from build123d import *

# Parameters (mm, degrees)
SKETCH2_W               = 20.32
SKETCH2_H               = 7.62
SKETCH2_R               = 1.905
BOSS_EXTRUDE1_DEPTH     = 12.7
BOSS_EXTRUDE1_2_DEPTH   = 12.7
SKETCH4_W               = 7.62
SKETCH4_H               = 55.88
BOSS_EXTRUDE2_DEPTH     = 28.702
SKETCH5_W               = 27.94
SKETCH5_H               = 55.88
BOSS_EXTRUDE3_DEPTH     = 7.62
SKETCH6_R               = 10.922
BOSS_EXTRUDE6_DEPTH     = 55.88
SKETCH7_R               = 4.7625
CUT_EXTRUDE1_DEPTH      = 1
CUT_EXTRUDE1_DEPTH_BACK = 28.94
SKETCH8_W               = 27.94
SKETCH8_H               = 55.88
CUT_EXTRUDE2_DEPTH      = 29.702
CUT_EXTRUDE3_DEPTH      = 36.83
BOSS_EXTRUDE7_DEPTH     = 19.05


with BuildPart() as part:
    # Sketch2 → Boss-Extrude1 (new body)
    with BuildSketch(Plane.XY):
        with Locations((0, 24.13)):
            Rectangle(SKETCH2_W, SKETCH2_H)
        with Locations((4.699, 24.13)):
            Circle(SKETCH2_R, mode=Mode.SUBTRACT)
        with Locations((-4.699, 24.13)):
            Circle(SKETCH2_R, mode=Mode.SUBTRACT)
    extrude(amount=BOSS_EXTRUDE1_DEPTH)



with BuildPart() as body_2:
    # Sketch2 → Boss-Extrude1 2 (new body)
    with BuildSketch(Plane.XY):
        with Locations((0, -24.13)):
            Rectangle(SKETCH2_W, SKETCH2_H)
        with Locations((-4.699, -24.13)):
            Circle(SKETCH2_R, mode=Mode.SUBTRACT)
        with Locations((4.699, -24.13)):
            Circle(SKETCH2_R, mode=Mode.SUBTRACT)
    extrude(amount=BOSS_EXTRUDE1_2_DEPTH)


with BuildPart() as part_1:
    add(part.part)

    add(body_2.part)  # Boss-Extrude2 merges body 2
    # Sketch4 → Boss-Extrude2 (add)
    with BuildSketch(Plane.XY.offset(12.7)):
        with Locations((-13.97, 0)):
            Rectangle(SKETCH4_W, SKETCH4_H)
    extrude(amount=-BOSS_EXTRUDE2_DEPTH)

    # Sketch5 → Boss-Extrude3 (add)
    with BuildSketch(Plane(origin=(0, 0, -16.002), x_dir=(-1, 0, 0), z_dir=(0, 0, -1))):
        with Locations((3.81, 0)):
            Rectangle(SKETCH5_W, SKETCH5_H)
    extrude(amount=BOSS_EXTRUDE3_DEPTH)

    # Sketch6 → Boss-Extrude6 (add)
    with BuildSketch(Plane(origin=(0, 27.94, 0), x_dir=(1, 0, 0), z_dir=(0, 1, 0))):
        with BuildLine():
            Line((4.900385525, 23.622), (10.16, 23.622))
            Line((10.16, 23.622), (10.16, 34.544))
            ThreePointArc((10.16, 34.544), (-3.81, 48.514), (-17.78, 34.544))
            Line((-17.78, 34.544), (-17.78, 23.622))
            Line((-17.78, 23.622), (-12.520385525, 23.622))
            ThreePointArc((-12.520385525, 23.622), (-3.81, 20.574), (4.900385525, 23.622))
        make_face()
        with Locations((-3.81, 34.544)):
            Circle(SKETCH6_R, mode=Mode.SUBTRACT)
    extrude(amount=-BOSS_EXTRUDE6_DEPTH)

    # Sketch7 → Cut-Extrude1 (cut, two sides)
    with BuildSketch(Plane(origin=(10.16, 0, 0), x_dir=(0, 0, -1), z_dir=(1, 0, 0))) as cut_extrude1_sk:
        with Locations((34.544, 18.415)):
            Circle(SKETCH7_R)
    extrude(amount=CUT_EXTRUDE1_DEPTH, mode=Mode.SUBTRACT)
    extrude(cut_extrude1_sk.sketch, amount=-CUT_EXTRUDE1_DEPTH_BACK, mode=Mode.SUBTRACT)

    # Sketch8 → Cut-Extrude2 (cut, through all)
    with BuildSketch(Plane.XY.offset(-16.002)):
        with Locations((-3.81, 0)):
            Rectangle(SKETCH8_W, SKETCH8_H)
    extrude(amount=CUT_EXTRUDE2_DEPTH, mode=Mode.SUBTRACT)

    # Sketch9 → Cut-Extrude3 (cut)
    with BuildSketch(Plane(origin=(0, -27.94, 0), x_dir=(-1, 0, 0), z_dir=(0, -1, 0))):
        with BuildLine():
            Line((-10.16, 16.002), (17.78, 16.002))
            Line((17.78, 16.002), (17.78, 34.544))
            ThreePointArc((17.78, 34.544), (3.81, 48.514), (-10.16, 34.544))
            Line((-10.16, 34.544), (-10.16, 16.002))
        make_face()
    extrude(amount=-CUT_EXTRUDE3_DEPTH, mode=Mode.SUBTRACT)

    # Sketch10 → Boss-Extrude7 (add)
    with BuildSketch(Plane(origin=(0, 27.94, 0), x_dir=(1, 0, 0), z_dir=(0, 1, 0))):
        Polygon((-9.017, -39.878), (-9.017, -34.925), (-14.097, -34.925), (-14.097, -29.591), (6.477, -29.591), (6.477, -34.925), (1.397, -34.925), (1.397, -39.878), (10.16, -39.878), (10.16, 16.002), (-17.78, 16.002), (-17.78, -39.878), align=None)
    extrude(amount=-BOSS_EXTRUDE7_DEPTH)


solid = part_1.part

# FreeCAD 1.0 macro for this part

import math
import FreeCAD as App
import Part
import Sketcher
Q = App.Units.Quantity

doc = App.newDocument("Part")
params = doc.addObject("Spreadsheet::Sheet", "Params")
for row, (alias, value) in enumerate([
    ("sketch1_diameter", "0.15 in"),
    ("sketch1_width", "0.8 in"),
    ("sketch1_height", "0.3 in"),
    ("pad1_length", "0.5 in"),
    ("sketch2_diameter", "0.15 in"),
    ("sketch2_width", "0.8 in"),
    ("sketch2_height", "0.3 in"),
    ("pad2_length", "0.5 in"),
    ("sketch3_width", "0.3 in"),
    ("sketch3_height", "2.2 in"),
    ("pad3_length", "1.13 in"),
    ("sketch4_width", "1.1 in"),
    ("sketch4_height", "2.2 in"),
    ("pad4_length", "0.3 in"),
    ("sketch5_diameter", "0.86 in"),
    ("sketch5_radius", "0.55 in"),
    ("sketch5_height", "0.43 in"),
    ("pad5_length", "2.2 in"),
    ("sketch6_diameter", "0.375 in"),
    ("sketch7_width", "1.1 in"),
    ("sketch7_height", "2.2 in"),
    ("sketch8_radius", "0.55 in"),
    ("sketch8_height", "0.73 in"),
    ("pocket3_length", "1.45 in"),
    ("sketch9_width", "0.2 in"),
    ("sketch9_width2", "1.1 in"),
    ("sketch9_height", "2.2 in"),
    ("sketch9_width3", "0.81 in"),
    ("sketch9_height2", "0.21 in"),
    ("pad6_length", "0.75 in"),
], start=1):
    params.set(f"A{row}", alias)
    params.set(f"B{row}", "=" + value)
    params.setAlias(f"B{row}", alias)

body = doc.addObject("PartDesign::Body", "Body")

sketch1 = body.newObject("Sketcher::SketchObject", "Sketch")
sketch1.AttachmentSupport = (doc.getObject("XY_Plane"), [""])
sketch1.MapMode = "FlatFace"
sketch1.addGeometry(Part.LineSegment(App.Vector(-10.2, 27.9, 0), App.Vector(-10.2, 20.3, 0)), False)
sketch1.addGeometry(Part.LineSegment(App.Vector(-10.2, 20.3, 0), App.Vector(10.2, 20.3, 0)), False)
sketch1.addGeometry(Part.LineSegment(App.Vector(10.2, 20.3, 0), App.Vector(10.2, 27.9, 0)), False)
sketch1.addGeometry(Part.LineSegment(App.Vector(10.2, 27.9, 0), App.Vector(-10.2, 27.9, 0)), False)
sketch1.addGeometry(Part.Circle(App.Vector(-4.7, 24.1, 0), App.Vector(0, 0, 1), 1.9), False)
sketch1.addGeometry(Part.Circle(App.Vector(4.7, 24.1, 0), App.Vector(0, 0, 1), 1.9), False)
sketch1.addConstraint(Sketcher.Constraint("Coincident", 0, 2, 1, 1))
sketch1.addConstraint(Sketcher.Constraint("Coincident", 1, 2, 2, 1))
sketch1.addConstraint(Sketcher.Constraint("Coincident", 2, 2, 3, 1))
sketch1.addConstraint(Sketcher.Constraint("Coincident", 3, 2, 0, 1))
sketch1.addConstraint(Sketcher.Constraint("Vertical", 0))
sketch1.addConstraint(Sketcher.Constraint("Horizontal", 1))
sketch1.addConstraint(Sketcher.Constraint("Vertical", 2))
sketch1.addConstraint(Sketcher.Constraint("Horizontal", 3))
sketch1.addConstraint(Sketcher.Constraint("Equal", 4, 5))
sketch1.addConstraint(Sketcher.Constraint("Symmetric", 4, 3, 5, 3, -2))
sketch1.addConstraint(Sketcher.Constraint("Diameter", 4, Q("0.15 in")))
sketch1.addConstraint(Sketcher.Constraint("DistanceX", 1, 1, 1, 2, Q("0.8 in")))
sketch1.addConstraint(Sketcher.Constraint("DistanceY", 0, 2, 0, 1, Q("0.3 in")))
sketch1.addConstraint(Sketcher.Constraint("DistanceX", 0, 2, -1, 1, Q("0.4 in")))
sketch1.addConstraint(Sketcher.Constraint("DistanceY", -1, 1, 0, 2, Q("0.8 in")))
sketch1.addConstraint(Sketcher.Constraint("DistanceY", -1, 1, 4, 3, Q("0.95 in")))
sketch1.addConstraint(Sketcher.Constraint("DistanceX", 4, 3, 5, 3, Q("0.37 in")))
sketch1.setExpression("Constraints[10]", "Params.sketch1_diameter")
sketch1.setExpression("Constraints[11]", "Params.sketch1_width")
sketch1.setExpression("Constraints[12]", "Params.sketch1_height")
pad1 = body.newObject("PartDesign::Pad", "Pad")
pad1.Profile = sketch1
pad1.setExpression("Length", "Params.pad1_length")
body2 = doc.addObject("PartDesign::Body", "Body001")

sketch2 = body2.newObject("Sketcher::SketchObject", "Sketch001")
sketch2.AttachmentSupport = (doc.getObject("XY_Plane001"), [""])
sketch2.MapMode = "FlatFace"
sketch2.addGeometry(Part.LineSegment(App.Vector(-10.2, -20.3, 0), App.Vector(-10.2, -27.9, 0)), False)
sketch2.addGeometry(Part.LineSegment(App.Vector(-10.2, -27.9, 0), App.Vector(10.2, -27.9, 0)), False)
sketch2.addGeometry(Part.LineSegment(App.Vector(10.2, -27.9, 0), App.Vector(10.2, -20.3, 0)), False)
sketch2.addGeometry(Part.LineSegment(App.Vector(10.2, -20.3, 0), App.Vector(-10.2, -20.3, 0)), False)
sketch2.addGeometry(Part.Circle(App.Vector(-4.7, -24.1, 0), App.Vector(0, 0, 1), 1.9), False)
sketch2.addGeometry(Part.Circle(App.Vector(4.7, -24.1, 0), App.Vector(0, 0, 1), 1.9), False)
sketch2.addConstraint(Sketcher.Constraint("Coincident", 0, 2, 1, 1))
sketch2.addConstraint(Sketcher.Constraint("Coincident", 1, 2, 2, 1))
sketch2.addConstraint(Sketcher.Constraint("Coincident", 2, 2, 3, 1))
sketch2.addConstraint(Sketcher.Constraint("Coincident", 3, 2, 0, 1))
sketch2.addConstraint(Sketcher.Constraint("Vertical", 0))
sketch2.addConstraint(Sketcher.Constraint("Horizontal", 1))
sketch2.addConstraint(Sketcher.Constraint("Vertical", 2))
sketch2.addConstraint(Sketcher.Constraint("Horizontal", 3))
sketch2.addConstraint(Sketcher.Constraint("Equal", 4, 5))
sketch2.addConstraint(Sketcher.Constraint("Symmetric", 4, 3, 5, 3, -2))
sketch2.addConstraint(Sketcher.Constraint("Diameter", 4, Q("0.15 in")))
sketch2.addConstraint(Sketcher.Constraint("DistanceX", 1, 1, 1, 2, Q("0.8 in")))
sketch2.addConstraint(Sketcher.Constraint("DistanceY", 0, 2, 0, 1, Q("0.3 in")))
sketch2.addConstraint(Sketcher.Constraint("DistanceX", 0, 2, -1, 1, Q("0.4 in")))
sketch2.addConstraint(Sketcher.Constraint("DistanceY", 0, 2, -1, 1, Q("1.1 in")))
sketch2.addConstraint(Sketcher.Constraint("DistanceY", 4, 3, -1, 1, Q("0.95 in")))
sketch2.addConstraint(Sketcher.Constraint("DistanceX", 4, 3, 5, 3, Q("0.37 in")))
sketch2.setExpression("Constraints[10]", "Params.sketch2_diameter")
sketch2.setExpression("Constraints[11]", "Params.sketch2_width")
sketch2.setExpression("Constraints[12]", "Params.sketch2_height")
pad2 = body2.newObject("PartDesign::Pad", "Pad001")
pad2.Profile = sketch2
pad2.setExpression("Length", "Params.pad2_length")
body.AllowCompound = True
doc.recompute()

boolean = body.newObject("PartDesign::Boolean", "Boolean")
boolean.Type = "Fuse"
boolean.addObjects([body2])

sketch3 = body.newObject("Sketcher::SketchObject", "Sketch002")
sketch3.AttachmentSupport = (doc.getObject("XY_Plane"), [""])
sketch3.MapMode = "FlatFace"
sketch3.AttachmentOffset = App.Placement(App.Vector(0, 0, 0.5 * 25.4), App.Rotation())
sketch3.addGeometry(Part.LineSegment(App.Vector(-18, 28, 0), App.Vector(-18, -28, 0)), False)
sketch3.addGeometry(Part.LineSegment(App.Vector(-18, -28, 0), App.Vector(-10, -28, 0)), False)
sketch3.addGeometry(Part.LineSegment(App.Vector(-10, -28, 0), App.Vector(-10, 28, 0)), False)
sketch3.addGeometry(Part.LineSegment(App.Vector(-10, 28, 0), App.Vector(-18, 28, 0)), False)
sketch3.addConstraint(Sketcher.Constraint("Coincident", 0, 2, 1, 1))
sketch3.addConstraint(Sketcher.Constraint("Coincident", 1, 2, 2, 1))
sketch3.addConstraint(Sketcher.Constraint("Coincident", 2, 2, 3, 1))
sketch3.addConstraint(Sketcher.Constraint("Coincident", 3, 2, 0, 1))
sketch3.addConstraint(Sketcher.Constraint("Vertical", 0))
sketch3.addConstraint(Sketcher.Constraint("Horizontal", 1))
sketch3.addConstraint(Sketcher.Constraint("Vertical", 2))
sketch3.addConstraint(Sketcher.Constraint("Horizontal", 3))
sketch3.addConstraint(Sketcher.Constraint("DistanceX", 1, 1, 1, 2, Q("0.3 in")))
sketch3.addConstraint(Sketcher.Constraint("DistanceY", 0, 2, 0, 1, Q("2.2 in")))
sketch3.addConstraint(Sketcher.Constraint("DistanceX", 0, 2, -1, 1, Q("0.7 in")))
sketch3.addConstraint(Sketcher.Constraint("DistanceY", 0, 2, -1, 1, Q("1.1 in")))
sketch3.setExpression("Constraints[8]", "Params.sketch3_width")
sketch3.setExpression("Constraints[9]", "Params.sketch3_height")
pad3 = body.newObject("PartDesign::Pad", "Pad002")
pad3.Profile = sketch3
pad3.setExpression("Length", "Params.pad3_length")
pad3.Reversed = True

sketch4 = body.newObject("Sketcher::SketchObject", "Sketch003")
sketch4.AttachmentSupport = (doc.getObject("XY_Plane"), [""])
sketch4.MapMode = "FlatFace"
sketch4.AttachmentOffset = App.Placement(App.Vector(0, 0, -0.63 * 25.4), App.Rotation())
sketch4.addGeometry(Part.LineSegment(App.Vector(10, 28, 0), App.Vector(10, -28, 0)), False)
sketch4.addGeometry(Part.LineSegment(App.Vector(10, -28, 0), App.Vector(-18, -28, 0)), False)
sketch4.addGeometry(Part.LineSegment(App.Vector(-18, -28, 0), App.Vector(-18, 28, 0)), False)
sketch4.addGeometry(Part.LineSegment(App.Vector(-18, 28, 0), App.Vector(10, 28, 0)), False)
sketch4.addConstraint(Sketcher.Constraint("Coincident", 0, 2, 1, 1))
sketch4.addConstraint(Sketcher.Constraint("Coincident", 1, 2, 2, 1))
sketch4.addConstraint(Sketcher.Constraint("Coincident", 2, 2, 3, 1))
sketch4.addConstraint(Sketcher.Constraint("Coincident", 3, 2, 0, 1))
sketch4.addConstraint(Sketcher.Constraint("Vertical", 0))
sketch4.addConstraint(Sketcher.Constraint("Horizontal", 1))
sketch4.addConstraint(Sketcher.Constraint("Vertical", 2))
sketch4.addConstraint(Sketcher.Constraint("Horizontal", 3))
sketch4.addConstraint(Sketcher.Constraint("DistanceX", 1, 2, 1, 1, Q("1.1 in")))
sketch4.addConstraint(Sketcher.Constraint("DistanceY", 0, 2, 0, 1, Q("2.2 in")))
sketch4.addConstraint(Sketcher.Constraint("DistanceX", -1, 1, 0, 2, Q("0.4 in")))
sketch4.addConstraint(Sketcher.Constraint("DistanceY", 0, 2, -1, 1, Q("1.1 in")))
sketch4.setExpression("Constraints[8]", "Params.sketch4_width")
sketch4.setExpression("Constraints[9]", "Params.sketch4_height")
pad4 = body.newObject("PartDesign::Pad", "Pad003")
pad4.Profile = sketch4
pad4.setExpression("Length", "Params.pad4_length")
pad4.Reversed = True

sketch5 = body.newObject("Sketcher::SketchObject", "Sketch004")
sketch5.AttachmentSupport = (doc.getObject("XZ_Plane"), [""])
sketch5.MapMode = "FlatFace"
sketch5.AttachmentOffset = App.Placement(App.Vector(0, 0, -1.1 * 25.4), App.Rotation())
sketch5.addGeometry(Part.LineSegment(App.Vector(5, -24, 0), App.Vector(10, -24, 0)), False)
sketch5.addGeometry(Part.LineSegment(App.Vector(10, -24, 0), App.Vector(10, -35, 0)), False)
sketch5.addGeometry(Part.ArcOfCircle(Part.Circle(App.Vector(-4, -35, 0), App.Vector(0, 0, 1), 14), math.radians(180), math.radians(360)), False)
sketch5.addGeometry(Part.LineSegment(App.Vector(-18, -35, 0), App.Vector(-18, -24, 0)), False)
sketch5.addGeometry(Part.LineSegment(App.Vector(-18, -24, 0), App.Vector(-13, -24, 0)), False)
sketch5.addGeometry(Part.ArcOfCircle(Part.Circle(App.Vector(-4, -35, 0), App.Vector(0, 0, 1), 14), math.radians(51), math.radians(129)), False)
sketch5.addGeometry(Part.Circle(App.Vector(-4, -35, 0), App.Vector(0, 0, 1), 11), False)
sketch5.addConstraint(Sketcher.Constraint("Coincident", 0, 2, 1, 1))
sketch5.addConstraint(Sketcher.Constraint("Tangent", 1, 2, 2, 2))
sketch5.addConstraint(Sketcher.Constraint("Tangent", 2, 1, 3, 1))
sketch5.addConstraint(Sketcher.Constraint("Coincident", 3, 2, 4, 1))
sketch5.addConstraint(Sketcher.Constraint("Coincident", 4, 2, 5, 2))
sketch5.addConstraint(Sketcher.Constraint("Coincident", 5, 1, 0, 1))
sketch5.addConstraint(Sketcher.Constraint("Horizontal", 0))
sketch5.addConstraint(Sketcher.Constraint("Vertical", 1))
sketch5.addConstraint(Sketcher.Constraint("Vertical", 3))
sketch5.addConstraint(Sketcher.Constraint("Horizontal", 4))
sketch5.addConstraint(Sketcher.Constraint("Coincident", 5, 3, 2, 3))
sketch5.addConstraint(Sketcher.Constraint("Coincident", 6, 3, 2, 3))
sketch5.addConstraint(Sketcher.Constraint("Equal", 2, 5))
sketch5.addConstraint(Sketcher.Constraint("Horizontal", 0, 2, 3, 2))
sketch5.addConstraint(Sketcher.Constraint("Diameter", 6, Q("0.86 in")))
sketch5.addConstraint(Sketcher.Constraint("Radius", 2, Q("0.55 in")))
sketch5.addConstraint(Sketcher.Constraint("DistanceY", 1, 2, 1, 1, Q("0.43 in")))
sketch5.addConstraint(Sketcher.Constraint("DistanceX", -1, 1, 0, 2, Q("0.4 in")))
sketch5.addConstraint(Sketcher.Constraint("DistanceY", 2, 3, -1, 1, Q("1.36 in")))
sketch5.setExpression("Constraints[14]", "Params.sketch5_diameter")
sketch5.setExpression("Constraints[15]", "Params.sketch5_radius")
sketch5.setExpression("Constraints[16]", "Params.sketch5_height")
pad5 = body.newObject("PartDesign::Pad", "Pad004")
pad5.Profile = sketch5
pad5.setExpression("Length", "Params.pad5_length")

sketch6 = body.newObject("Sketcher::SketchObject", "Sketch005")
sketch6.AttachmentSupport = (doc.getObject("YZ_Plane"), [""])
sketch6.MapMode = "FlatFace"
sketch6.AttachmentOffset = App.Placement(App.Vector(0, 0, 0.4 * 25.4), App.Rotation())
sketch6.addGeometry(Part.Circle(App.Vector(18.4, -34.5, 0), App.Vector(0, 0, 1), 4.8), False)
sketch6.addConstraint(Sketcher.Constraint("Diameter", 0, Q("0.375 in")))
sketch6.addConstraint(Sketcher.Constraint("DistanceY", 0, 3, -1, 1, Q("1.36 in")))
sketch6.addConstraint(Sketcher.Constraint("DistanceX", -1, 1, 0, 3, Q("0.725 in")))
sketch6.setExpression("Constraints[0]", "Params.sketch6_diameter")
pocket1 = body.newObject("PartDesign::Pocket", "Pocket")
pocket1.Profile = sketch6
pocket1.Type = "ThroughAll"
pocket1.Midplane = True

sketch7 = body.newObject("Sketcher::SketchObject", "Sketch006")
sketch7.AttachmentSupport = (doc.getObject("XY_Plane"), [""])
sketch7.MapMode = "FlatFace"
sketch7.AttachmentOffset = App.Placement(App.Vector(0, 0, -0.63 * 25.4), App.Rotation())
sketch7.addGeometry(Part.LineSegment(App.Vector(-18, 28, 0), App.Vector(-18, -28, 0)), False)
sketch7.addGeometry(Part.LineSegment(App.Vector(-18, -28, 0), App.Vector(10, -28, 0)), False)
sketch7.addGeometry(Part.LineSegment(App.Vector(10, -28, 0), App.Vector(10, 28, 0)), False)
sketch7.addGeometry(Part.LineSegment(App.Vector(10, 28, 0), App.Vector(-18, 28, 0)), False)
sketch7.addConstraint(Sketcher.Constraint("Coincident", 0, 2, 1, 1))
sketch7.addConstraint(Sketcher.Constraint("Coincident", 1, 2, 2, 1))
sketch7.addConstraint(Sketcher.Constraint("Coincident", 2, 2, 3, 1))
sketch7.addConstraint(Sketcher.Constraint("Coincident", 3, 2, 0, 1))
sketch7.addConstraint(Sketcher.Constraint("Vertical", 0))
sketch7.addConstraint(Sketcher.Constraint("Horizontal", 1))
sketch7.addConstraint(Sketcher.Constraint("Vertical", 2))
sketch7.addConstraint(Sketcher.Constraint("Horizontal", 3))
sketch7.addConstraint(Sketcher.Constraint("DistanceX", 1, 1, 1, 2, Q("1.1 in")))
sketch7.addConstraint(Sketcher.Constraint("DistanceY", 0, 2, 0, 1, Q("2.2 in")))
sketch7.addConstraint(Sketcher.Constraint("DistanceX", 0, 2, -1, 1, Q("0.7 in")))
sketch7.addConstraint(Sketcher.Constraint("DistanceY", 0, 2, -1, 1, Q("1.1 in")))
sketch7.setExpression("Constraints[8]", "Params.sketch7_width")
sketch7.setExpression("Constraints[9]", "Params.sketch7_height")
pocket2 = body.newObject("PartDesign::Pocket", "Pocket001")
pocket2.Profile = sketch7
pocket2.Type = "ThroughAll"
pocket2.Reversed = True

sketch8 = body.newObject("Sketcher::SketchObject", "Sketch007")
sketch8.AttachmentSupport = (doc.getObject("XZ_Plane"), [""])
sketch8.MapMode = "FlatFace"
sketch8.AttachmentOffset = App.Placement(App.Vector(0, 0, 1.1 * 25.4), App.Rotation())
sketch8.addGeometry(Part.LineSegment(App.Vector(10, -16, 0), App.Vector(-18, -16, 0)), False)
sketch8.addGeometry(Part.LineSegment(App.Vector(-18, -16, 0), App.Vector(-18, -35, 0)), False)
sketch8.addGeometry(Part.ArcOfCircle(Part.Circle(App.Vector(-4, -35, 0), App.Vector(0, 0, 1), 14), math.radians(180), math.radians(360)), False)
sketch8.addGeometry(Part.LineSegment(App.Vector(10, -35, 0), App.Vector(10, -16, 0)), False)
sketch8.addConstraint(Sketcher.Constraint("Coincident", 0, 2, 1, 1))
sketch8.addConstraint(Sketcher.Constraint("Tangent", 1, 2, 2, 1))
sketch8.addConstraint(Sketcher.Constraint("Tangent", 2, 2, 3, 1))
sketch8.addConstraint(Sketcher.Constraint("Coincident", 3, 2, 0, 1))
sketch8.addConstraint(Sketcher.Constraint("Horizontal", 0))
sketch8.addConstraint(Sketcher.Constraint("Vertical", 1))
sketch8.addConstraint(Sketcher.Constraint("Vertical", 3))
sketch8.addConstraint(Sketcher.Constraint("Radius", 2, Q("0.55 in")))
sketch8.addConstraint(Sketcher.Constraint("DistanceY", 1, 2, 1, 1, Q("0.73 in")))
sketch8.addConstraint(Sketcher.Constraint("DistanceX", 0, 2, -1, 1, Q("0.7 in")))
sketch8.addConstraint(Sketcher.Constraint("DistanceY", 2, 3, -1, 1, Q("1.36 in")))
sketch8.setExpression("Constraints[7]", "Params.sketch8_radius")
sketch8.setExpression("Constraints[8]", "Params.sketch8_height")
pocket3 = body.newObject("PartDesign::Pocket", "Pocket002")
pocket3.Profile = sketch8
pocket3.setExpression("Length", "Params.pocket3_length")

sketch9 = body.newObject("Sketcher::SketchObject", "Sketch008")
sketch9.AttachmentSupport = (doc.getObject("XZ_Plane"), [""])
sketch9.MapMode = "FlatFace"
sketch9.AttachmentOffset = App.Placement(App.Vector(0, 0, -1.1 * 25.4), App.Rotation())
sketch9.addGeometry(Part.LineSegment(App.Vector(-9, 39.9, 0), App.Vector(-9, 34.9, 0)), False)
sketch9.addGeometry(Part.LineSegment(App.Vector(-9, 34.9, 0), App.Vector(-14.1, 34.9, 0)), False)
sketch9.addGeometry(Part.LineSegment(App.Vector(-14.1, 34.9, 0), App.Vector(-14.1, 29.6, 0)), False)
sketch9.addGeometry(Part.LineSegment(App.Vector(-14.1, 29.6, 0), App.Vector(6.5, 29.6, 0)), False)
sketch9.addGeometry(Part.LineSegment(App.Vector(6.5, 29.6, 0), App.Vector(6.5, 34.9, 0)), False)
sketch9.addGeometry(Part.LineSegment(App.Vector(6.5, 34.9, 0), App.Vector(1.4, 34.9, 0)), False)
sketch9.addGeometry(Part.LineSegment(App.Vector(1.4, 34.9, 0), App.Vector(1.4, 39.9, 0)), False)
sketch9.addGeometry(Part.LineSegment(App.Vector(1.4, 39.9, 0), App.Vector(10.2, 39.9, 0)), False)
sketch9.addGeometry(Part.LineSegment(App.Vector(10.2, 39.9, 0), App.Vector(10.2, -16, 0)), False)
sketch9.addGeometry(Part.LineSegment(App.Vector(10.2, -16, 0), App.Vector(-17.8, -16, 0)), False)
sketch9.addGeometry(Part.LineSegment(App.Vector(-17.8, -16, 0), App.Vector(-17.8, 39.9, 0)), False)
sketch9.addGeometry(Part.LineSegment(App.Vector(-17.8, 39.9, 0), App.Vector(-9, 39.9, 0)), False)
sketch9.addConstraint(Sketcher.Constraint("Coincident", 0, 2, 1, 1))
sketch9.addConstraint(Sketcher.Constraint("Coincident", 1, 2, 2, 1))
sketch9.addConstraint(Sketcher.Constraint("Coincident", 2, 2, 3, 1))
sketch9.addConstraint(Sketcher.Constraint("Coincident", 3, 2, 4, 1))
sketch9.addConstraint(Sketcher.Constraint("Coincident", 4, 2, 5, 1))
sketch9.addConstraint(Sketcher.Constraint("Coincident", 5, 2, 6, 1))
sketch9.addConstraint(Sketcher.Constraint("Coincident", 6, 2, 7, 1))
sketch9.addConstraint(Sketcher.Constraint("Coincident", 7, 2, 8, 1))
sketch9.addConstraint(Sketcher.Constraint("Coincident", 8, 2, 9, 1))
sketch9.addConstraint(Sketcher.Constraint("Coincident", 9, 2, 10, 1))
sketch9.addConstraint(Sketcher.Constraint("Coincident", 10, 2, 11, 1))
sketch9.addConstraint(Sketcher.Constraint("Coincident", 11, 2, 0, 1))
sketch9.addConstraint(Sketcher.Constraint("Vertical", 0))
sketch9.addConstraint(Sketcher.Constraint("Horizontal", 1))
sketch9.addConstraint(Sketcher.Constraint("Vertical", 2))
sketch9.addConstraint(Sketcher.Constraint("Horizontal", 3))
sketch9.addConstraint(Sketcher.Constraint("Vertical", 4))
sketch9.addConstraint(Sketcher.Constraint("Horizontal", 5))
sketch9.addConstraint(Sketcher.Constraint("Vertical", 6))
sketch9.addConstraint(Sketcher.Constraint("Horizontal", 7))
sketch9.addConstraint(Sketcher.Constraint("Vertical", 8))
sketch9.addConstraint(Sketcher.Constraint("Horizontal", 9))
sketch9.addConstraint(Sketcher.Constraint("Vertical", 10))
sketch9.addConstraint(Sketcher.Constraint("Horizontal", 11))
sketch9.addConstraint(Sketcher.Constraint("Horizontal", 1, 2, 4, 2))
sketch9.addConstraint(Sketcher.Constraint("Horizontal", 7, 2, 10, 2))
sketch9.addConstraint(Sketcher.Constraint("Equal", 1, 5))
sketch9.addConstraint(Sketcher.Constraint("Equal", 7, 11))
sketch9.addConstraint(Sketcher.Constraint("DistanceX", 1, 2, 1, 1, Q("0.2 in")))
sketch9.addConstraint(Sketcher.Constraint("DistanceX", 9, 2, 9, 1, Q("1.1 in")))
sketch9.addConstraint(Sketcher.Constraint("DistanceY", 8, 2, 8, 1, Q("2.2 in")))
sketch9.addConstraint(Sketcher.Constraint("DistanceX", 3, 1, 3, 2, Q("0.81 in")))
sketch9.addConstraint(Sketcher.Constraint("DistanceY", 2, 2, 2, 1, Q("0.21 in")))
sketch9.addConstraint(Sketcher.Constraint("DistanceX", -1, 1, 7, 2, Q("0.4 in")))
sketch9.addConstraint(Sketcher.Constraint("DistanceY", 0, 2, 0, 1, Q("0.195 in")))
sketch9.addConstraint(Sketcher.Constraint("DistanceY", -1, 1, 6, 2, Q("1.57 in")))
sketch9.setExpression("Constraints[28]", "Params.sketch9_width")
sketch9.setExpression("Constraints[29]", "Params.sketch9_width2")
sketch9.setExpression("Constraints[30]", "Params.sketch9_height")
sketch9.setExpression("Constraints[31]", "Params.sketch9_width3")
sketch9.setExpression("Constraints[32]", "Params.sketch9_height2")
pad6 = body.newObject("PartDesign::Pad", "Pad005")
pad6.Profile = sketch9
pad6.setExpression("Length", "Params.pad6_length")

doc.recompute()
